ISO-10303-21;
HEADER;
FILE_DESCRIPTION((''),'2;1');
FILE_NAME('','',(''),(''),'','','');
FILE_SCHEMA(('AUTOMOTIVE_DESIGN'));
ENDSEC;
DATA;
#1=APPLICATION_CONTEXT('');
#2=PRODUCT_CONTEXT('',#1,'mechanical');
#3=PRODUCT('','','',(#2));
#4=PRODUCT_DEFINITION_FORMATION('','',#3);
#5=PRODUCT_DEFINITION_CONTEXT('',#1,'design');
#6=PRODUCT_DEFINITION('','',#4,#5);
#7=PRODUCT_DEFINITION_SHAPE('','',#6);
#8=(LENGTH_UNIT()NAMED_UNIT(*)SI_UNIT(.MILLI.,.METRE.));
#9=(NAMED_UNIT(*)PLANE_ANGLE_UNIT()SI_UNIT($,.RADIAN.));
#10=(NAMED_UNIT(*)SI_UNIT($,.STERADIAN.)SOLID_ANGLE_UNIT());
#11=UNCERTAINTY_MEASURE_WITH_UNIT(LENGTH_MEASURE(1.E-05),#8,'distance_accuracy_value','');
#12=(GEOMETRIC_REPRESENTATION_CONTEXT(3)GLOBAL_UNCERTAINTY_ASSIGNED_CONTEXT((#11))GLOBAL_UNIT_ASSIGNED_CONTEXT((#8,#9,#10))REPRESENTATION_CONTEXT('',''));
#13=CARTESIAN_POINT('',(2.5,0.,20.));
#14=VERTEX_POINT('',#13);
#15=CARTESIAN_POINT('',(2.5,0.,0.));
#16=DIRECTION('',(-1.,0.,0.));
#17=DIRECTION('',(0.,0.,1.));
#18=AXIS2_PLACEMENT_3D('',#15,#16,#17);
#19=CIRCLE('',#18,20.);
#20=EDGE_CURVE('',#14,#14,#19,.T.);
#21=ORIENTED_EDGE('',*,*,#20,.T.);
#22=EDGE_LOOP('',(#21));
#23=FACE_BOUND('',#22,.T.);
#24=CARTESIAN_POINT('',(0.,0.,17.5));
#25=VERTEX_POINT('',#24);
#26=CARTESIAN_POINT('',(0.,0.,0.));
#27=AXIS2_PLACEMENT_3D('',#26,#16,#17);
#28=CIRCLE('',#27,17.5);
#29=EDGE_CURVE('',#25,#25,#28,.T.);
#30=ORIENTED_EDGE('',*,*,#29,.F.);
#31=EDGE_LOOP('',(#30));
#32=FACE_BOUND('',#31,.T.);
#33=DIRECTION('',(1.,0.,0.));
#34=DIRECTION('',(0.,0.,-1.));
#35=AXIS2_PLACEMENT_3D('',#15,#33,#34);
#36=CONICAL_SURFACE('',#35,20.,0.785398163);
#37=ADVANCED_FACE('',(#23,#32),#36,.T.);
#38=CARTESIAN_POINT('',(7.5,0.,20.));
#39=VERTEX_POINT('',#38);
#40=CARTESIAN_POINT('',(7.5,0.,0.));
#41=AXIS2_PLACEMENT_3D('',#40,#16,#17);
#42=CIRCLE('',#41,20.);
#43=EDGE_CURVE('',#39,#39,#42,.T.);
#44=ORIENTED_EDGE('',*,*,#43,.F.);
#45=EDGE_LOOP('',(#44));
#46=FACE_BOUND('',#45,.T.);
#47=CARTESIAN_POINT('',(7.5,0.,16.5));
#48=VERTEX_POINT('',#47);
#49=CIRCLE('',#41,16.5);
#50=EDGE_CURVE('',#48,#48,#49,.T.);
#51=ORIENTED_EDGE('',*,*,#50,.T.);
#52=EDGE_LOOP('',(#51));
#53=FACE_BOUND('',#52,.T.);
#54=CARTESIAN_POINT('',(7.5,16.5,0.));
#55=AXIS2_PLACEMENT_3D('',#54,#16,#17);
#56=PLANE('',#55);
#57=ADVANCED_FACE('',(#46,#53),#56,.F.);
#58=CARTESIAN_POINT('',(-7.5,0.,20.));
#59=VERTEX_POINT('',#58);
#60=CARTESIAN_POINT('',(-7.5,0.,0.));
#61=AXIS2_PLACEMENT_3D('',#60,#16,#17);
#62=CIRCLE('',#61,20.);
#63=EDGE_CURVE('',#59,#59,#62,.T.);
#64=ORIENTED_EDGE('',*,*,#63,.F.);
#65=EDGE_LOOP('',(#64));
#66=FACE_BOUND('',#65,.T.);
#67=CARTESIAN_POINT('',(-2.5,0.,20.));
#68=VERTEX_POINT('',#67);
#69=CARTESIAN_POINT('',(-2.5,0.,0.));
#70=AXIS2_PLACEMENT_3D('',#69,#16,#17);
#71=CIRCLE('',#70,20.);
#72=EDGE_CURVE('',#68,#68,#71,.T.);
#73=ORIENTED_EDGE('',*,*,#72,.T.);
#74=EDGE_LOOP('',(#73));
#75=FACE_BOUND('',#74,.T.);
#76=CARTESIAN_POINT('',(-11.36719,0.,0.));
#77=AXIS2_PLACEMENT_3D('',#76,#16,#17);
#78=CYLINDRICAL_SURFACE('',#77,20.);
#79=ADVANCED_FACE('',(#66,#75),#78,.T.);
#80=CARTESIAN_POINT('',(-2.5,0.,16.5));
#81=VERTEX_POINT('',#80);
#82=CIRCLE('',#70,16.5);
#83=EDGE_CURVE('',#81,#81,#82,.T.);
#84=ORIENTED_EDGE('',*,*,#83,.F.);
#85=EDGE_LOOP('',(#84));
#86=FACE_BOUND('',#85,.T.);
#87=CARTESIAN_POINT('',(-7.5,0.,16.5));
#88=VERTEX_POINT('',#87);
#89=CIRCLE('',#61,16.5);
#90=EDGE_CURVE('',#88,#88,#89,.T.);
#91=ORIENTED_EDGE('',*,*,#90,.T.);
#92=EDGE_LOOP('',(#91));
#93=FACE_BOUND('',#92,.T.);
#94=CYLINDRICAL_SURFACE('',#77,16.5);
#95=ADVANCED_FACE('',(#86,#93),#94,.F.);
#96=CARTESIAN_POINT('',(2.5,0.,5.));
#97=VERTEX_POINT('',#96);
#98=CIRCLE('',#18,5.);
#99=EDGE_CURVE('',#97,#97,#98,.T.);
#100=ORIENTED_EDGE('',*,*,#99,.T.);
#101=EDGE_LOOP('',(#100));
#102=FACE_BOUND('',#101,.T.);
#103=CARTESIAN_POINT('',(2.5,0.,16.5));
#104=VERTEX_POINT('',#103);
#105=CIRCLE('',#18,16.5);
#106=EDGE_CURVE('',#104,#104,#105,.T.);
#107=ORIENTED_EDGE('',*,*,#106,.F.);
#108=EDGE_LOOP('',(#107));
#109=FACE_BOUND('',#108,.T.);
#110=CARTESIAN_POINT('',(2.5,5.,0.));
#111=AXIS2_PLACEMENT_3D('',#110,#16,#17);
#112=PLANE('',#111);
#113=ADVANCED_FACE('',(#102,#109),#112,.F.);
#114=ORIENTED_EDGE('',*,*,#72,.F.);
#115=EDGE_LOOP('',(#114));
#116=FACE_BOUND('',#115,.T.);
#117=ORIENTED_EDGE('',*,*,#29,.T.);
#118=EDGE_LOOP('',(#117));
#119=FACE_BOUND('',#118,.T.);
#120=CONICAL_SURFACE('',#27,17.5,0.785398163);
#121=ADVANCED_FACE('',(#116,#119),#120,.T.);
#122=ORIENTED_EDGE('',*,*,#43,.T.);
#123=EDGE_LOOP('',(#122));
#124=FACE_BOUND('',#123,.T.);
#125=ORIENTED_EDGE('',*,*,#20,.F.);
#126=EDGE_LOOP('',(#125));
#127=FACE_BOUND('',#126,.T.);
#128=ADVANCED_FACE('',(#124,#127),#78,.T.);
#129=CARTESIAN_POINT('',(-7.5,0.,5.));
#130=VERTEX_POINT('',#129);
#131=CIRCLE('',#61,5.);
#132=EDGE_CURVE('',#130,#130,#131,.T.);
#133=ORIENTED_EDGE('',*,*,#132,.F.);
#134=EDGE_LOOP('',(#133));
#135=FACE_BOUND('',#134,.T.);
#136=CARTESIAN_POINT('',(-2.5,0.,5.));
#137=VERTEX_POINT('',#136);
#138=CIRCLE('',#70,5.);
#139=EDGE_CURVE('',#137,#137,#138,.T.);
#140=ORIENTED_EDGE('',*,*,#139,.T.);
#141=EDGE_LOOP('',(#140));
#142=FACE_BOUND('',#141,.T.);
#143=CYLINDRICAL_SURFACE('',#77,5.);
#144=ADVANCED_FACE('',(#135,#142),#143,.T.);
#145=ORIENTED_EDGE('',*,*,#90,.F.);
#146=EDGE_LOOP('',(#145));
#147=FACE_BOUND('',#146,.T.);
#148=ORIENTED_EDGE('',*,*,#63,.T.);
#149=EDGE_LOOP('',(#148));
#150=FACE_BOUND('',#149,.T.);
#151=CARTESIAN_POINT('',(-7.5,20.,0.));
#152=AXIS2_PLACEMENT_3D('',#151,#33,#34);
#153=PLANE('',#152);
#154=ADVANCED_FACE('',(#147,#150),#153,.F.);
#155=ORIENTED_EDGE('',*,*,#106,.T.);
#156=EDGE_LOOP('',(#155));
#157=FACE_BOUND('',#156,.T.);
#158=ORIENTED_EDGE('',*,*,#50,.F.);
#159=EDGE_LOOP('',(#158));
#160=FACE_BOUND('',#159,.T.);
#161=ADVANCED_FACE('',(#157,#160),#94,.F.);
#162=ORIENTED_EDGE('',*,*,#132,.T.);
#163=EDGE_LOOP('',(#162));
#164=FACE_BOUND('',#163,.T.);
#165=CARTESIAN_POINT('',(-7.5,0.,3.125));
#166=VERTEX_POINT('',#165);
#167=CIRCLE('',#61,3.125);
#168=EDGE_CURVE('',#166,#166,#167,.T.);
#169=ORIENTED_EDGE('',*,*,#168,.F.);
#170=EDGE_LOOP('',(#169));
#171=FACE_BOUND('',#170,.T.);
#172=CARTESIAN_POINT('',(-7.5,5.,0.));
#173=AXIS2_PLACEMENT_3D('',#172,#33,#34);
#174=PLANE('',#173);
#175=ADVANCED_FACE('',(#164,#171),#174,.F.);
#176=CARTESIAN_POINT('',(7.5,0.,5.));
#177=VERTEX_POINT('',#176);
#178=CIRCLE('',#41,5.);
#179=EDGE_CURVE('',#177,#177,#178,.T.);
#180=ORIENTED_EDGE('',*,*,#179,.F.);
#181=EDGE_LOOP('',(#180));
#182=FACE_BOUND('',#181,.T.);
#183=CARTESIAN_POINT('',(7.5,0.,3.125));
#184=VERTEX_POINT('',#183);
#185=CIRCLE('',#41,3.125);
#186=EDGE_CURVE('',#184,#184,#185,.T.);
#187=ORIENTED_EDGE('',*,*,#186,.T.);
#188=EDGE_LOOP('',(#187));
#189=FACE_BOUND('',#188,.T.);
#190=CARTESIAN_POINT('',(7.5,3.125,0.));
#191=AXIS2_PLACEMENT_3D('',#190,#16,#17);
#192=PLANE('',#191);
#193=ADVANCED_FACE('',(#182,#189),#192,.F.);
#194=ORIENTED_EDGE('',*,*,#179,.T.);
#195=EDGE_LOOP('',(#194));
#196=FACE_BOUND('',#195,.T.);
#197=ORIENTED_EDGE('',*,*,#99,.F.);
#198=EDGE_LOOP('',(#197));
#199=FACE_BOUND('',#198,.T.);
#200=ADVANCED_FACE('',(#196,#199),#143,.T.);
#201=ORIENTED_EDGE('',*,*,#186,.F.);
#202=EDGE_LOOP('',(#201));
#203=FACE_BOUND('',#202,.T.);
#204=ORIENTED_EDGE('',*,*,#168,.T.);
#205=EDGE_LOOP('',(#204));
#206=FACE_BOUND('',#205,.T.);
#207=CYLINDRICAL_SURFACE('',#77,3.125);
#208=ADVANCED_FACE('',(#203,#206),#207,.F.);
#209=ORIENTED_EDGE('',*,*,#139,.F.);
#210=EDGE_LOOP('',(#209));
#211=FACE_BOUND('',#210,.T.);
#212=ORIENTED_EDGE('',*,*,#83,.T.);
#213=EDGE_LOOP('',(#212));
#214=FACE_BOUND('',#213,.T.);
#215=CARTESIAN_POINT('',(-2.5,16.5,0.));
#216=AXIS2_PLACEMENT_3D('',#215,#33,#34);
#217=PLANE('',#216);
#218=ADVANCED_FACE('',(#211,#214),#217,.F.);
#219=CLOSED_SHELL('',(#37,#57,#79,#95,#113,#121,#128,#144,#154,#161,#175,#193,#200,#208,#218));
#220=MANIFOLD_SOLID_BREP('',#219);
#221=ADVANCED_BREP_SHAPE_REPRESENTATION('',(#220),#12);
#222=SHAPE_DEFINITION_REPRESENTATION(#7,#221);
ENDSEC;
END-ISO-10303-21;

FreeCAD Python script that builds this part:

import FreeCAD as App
import Part
import Sketcher

V = App.Vector


def add_polygon(sketch, points):
    """Adds a closed chain of lines whose ends are joined by coincident constraints."""
    first, n = sketch.GeometryCount, len(points)
    for a, b in zip(points, points[1:] + points[:1]):
        sketch.addGeometry(Part.LineSegment(App.Vector(*a, 0), App.Vector(*b, 0)), False)
    for i in range(n):
        sketch.addConstraint(Sketcher.Constraint("Coincident", first + i, 2, first + (i + 1) % n, 1))

doc = App.newDocument("Part")
body = doc.addObject("PartDesign::Body", "Body")

# Sketch on XY plane
sketch1 = doc.addObject("Sketcher::SketchObject", "Sketch")
body.addObject(sketch1)
sketch1.AttachmentSupport = (doc.XY_Plane, [""])
sketch1.MapMode = "FlatFace"
add_polygon(sketch1, [(-7.5, 3.125), (7.5, 3.125), (7.5, 5), (2.5, 5), (2.5, 16.5), (7.5, 16.5), (7.5, 20), (2.5, 20), (0, 17.5), (-2.5, 20), (-7.5, 20), (-7.5, 16.5), (-2.5, 16.5), (-2.5, 5), (-7.5, 5)])  # lines 0-14
sketch1.addConstraint([
    Sketcher.Constraint("Horizontal", 0),
    Sketcher.Constraint("Vertical", 1),
    Sketcher.Constraint("Horizontal", 2),
    Sketcher.Constraint("Vertical", 3),
    Sketcher.Constraint("Horizontal", 4),
    Sketcher.Constraint("Vertical", 5),
    Sketcher.Constraint("Horizontal", 6),
    Sketcher.Constraint("Horizontal", 9),
    Sketcher.Constraint("Vertical", 10),
    Sketcher.Constraint("Horizontal", 11),
    Sketcher.Constraint("Vertical", 12),
    Sketcher.Constraint("Horizontal", 13),
    Sketcher.Constraint("Vertical", 14),
    Sketcher.Constraint("Symmetric", 6, 2, 8, 2, -2),
    Sketcher.Constraint("Symmetric", 4, 2, 10, 2, -2),
    Sketcher.Constraint("Symmetric", 2, 2, 12, 2, -2),
    Sketcher.Constraint("PointOnObject", 7, 2, -2),
    Sketcher.Constraint("Perpendicular", 7, 8),
    Sketcher.Constraint("Vertical", 1, 2, 4, 2),
    Sketcher.Constraint("Vertical", 3, 2, 6, 2),
    Sketcher.Constraint("Vertical", 10, 2, 13, 2),
    Sketcher.Constraint("DistanceX", 0, 1, 0, 2, 15.0),
    Sketcher.Constraint("DistanceX", 2, 2, 2, 1, 5.0),
    Sketcher.Constraint("DistanceY", 3, 1, 3, 2, 11.5),
    Sketcher.Constraint("DistanceY", 5, 1, 5, 2, 3.5),
    Sketcher.Constraint("DistanceY", -1, 1, 1, 2, 5.0),
    Sketcher.Constraint("DistanceY", 1, 1, 1, 2, 1.875),
])
revolution = doc.addObject("PartDesign::Revolution", "Revolution")
body.addObject(revolution)
revolution.Profile = sketch1
revolution.ReferenceAxis = (sketch1, ["H_Axis"])
revolution.Angle = 360

doc.recompute()
